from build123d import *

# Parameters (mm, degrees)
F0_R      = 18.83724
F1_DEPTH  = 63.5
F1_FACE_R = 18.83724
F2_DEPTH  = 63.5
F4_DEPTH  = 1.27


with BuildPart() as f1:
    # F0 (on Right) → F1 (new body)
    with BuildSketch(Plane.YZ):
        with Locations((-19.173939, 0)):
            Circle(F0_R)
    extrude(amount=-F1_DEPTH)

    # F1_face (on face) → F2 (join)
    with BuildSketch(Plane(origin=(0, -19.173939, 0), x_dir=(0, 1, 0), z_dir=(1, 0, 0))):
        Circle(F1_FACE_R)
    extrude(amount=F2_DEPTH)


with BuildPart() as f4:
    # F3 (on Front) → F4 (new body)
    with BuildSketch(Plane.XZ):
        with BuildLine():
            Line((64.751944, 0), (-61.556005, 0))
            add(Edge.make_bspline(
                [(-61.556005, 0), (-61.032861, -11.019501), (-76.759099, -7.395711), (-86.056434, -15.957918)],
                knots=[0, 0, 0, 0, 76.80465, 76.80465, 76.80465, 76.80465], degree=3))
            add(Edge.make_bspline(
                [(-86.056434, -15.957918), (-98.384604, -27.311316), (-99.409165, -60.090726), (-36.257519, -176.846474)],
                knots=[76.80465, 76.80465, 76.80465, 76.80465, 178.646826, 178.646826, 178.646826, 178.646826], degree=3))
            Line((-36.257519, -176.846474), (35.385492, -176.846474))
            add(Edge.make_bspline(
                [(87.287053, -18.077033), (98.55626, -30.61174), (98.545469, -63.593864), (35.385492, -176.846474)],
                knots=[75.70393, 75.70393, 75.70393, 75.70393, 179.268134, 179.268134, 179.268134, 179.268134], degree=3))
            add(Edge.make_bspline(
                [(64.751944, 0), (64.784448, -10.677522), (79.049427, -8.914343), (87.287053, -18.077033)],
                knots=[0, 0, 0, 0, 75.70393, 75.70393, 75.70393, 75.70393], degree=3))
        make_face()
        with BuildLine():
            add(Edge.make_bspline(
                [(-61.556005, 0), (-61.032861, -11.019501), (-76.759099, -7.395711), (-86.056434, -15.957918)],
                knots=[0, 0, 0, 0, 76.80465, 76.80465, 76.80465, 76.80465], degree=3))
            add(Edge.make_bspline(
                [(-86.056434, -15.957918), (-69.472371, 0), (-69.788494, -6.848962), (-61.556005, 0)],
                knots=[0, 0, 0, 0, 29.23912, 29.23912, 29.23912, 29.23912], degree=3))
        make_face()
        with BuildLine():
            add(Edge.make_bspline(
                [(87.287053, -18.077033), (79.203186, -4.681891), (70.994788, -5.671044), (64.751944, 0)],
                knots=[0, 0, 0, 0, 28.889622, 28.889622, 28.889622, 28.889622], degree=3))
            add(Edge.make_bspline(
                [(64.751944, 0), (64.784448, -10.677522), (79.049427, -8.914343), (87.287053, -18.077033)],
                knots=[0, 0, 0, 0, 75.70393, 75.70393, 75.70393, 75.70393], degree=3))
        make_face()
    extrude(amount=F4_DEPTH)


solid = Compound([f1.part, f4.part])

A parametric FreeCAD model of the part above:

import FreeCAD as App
import Part
import Sketcher
Q = App.Units.Quantity

doc = App.newDocument("Part")
body = doc.addObject("PartDesign::Body", "Body")

# Sketch on YZ plane
sketch1 = body.newObject("Sketcher::SketchObject", "Sketch")
sketch1.AttachmentSupport = (doc.getObject("YZ_Plane"), [""])
sketch1.MapMode = "FlatFace"
sketch1.addGeometry(Part.Circle(App.Vector(-19, 0, 0), App.Vector(0, 0, 1), 19), False)
sketch1.addConstraint(Sketcher.Constraint("PointOnObject", 0, 3, -1))
sketch1.addConstraint(Sketcher.Constraint("Diameter", 0, 37.67448))
sketch1.addConstraint(Sketcher.Constraint("DistanceX", 0, 3, -1, 1, 19.173939))
pad1 = body.newObject("PartDesign::Pad", "Pad")
pad1.Profile = sketch1
pad1.Length = Q("2.5 in")
pad1.Reversed = True

# Sketch on YZ plane
sketch2 = body.newObject("Sketcher::SketchObject", "Sketch001")
sketch2.AttachmentSupport = (doc.getObject("YZ_Plane"), [""])
sketch2.MapMode = "FlatFace"
sketch2.addGeometry(Part.Circle(App.Vector(-19, 0, 0), App.Vector(0, 0, 1), 19), False)
sketch2.addConstraint(Sketcher.Constraint("PointOnObject", 0, 3, -1))
sketch2.addConstraint(Sketcher.Constraint("Diameter", 0, 37.67448))
sketch2.addConstraint(Sketcher.Constraint("DistanceX", 0, 3, -1, 1, 19.173939))
pad2 = body.newObject("PartDesign::Pad", "Pad001")
pad2.Profile = sketch2
pad2.Length = Q("2.5 in")
body2 = doc.addObject("PartDesign::Body", "Body001")

# Sketch on XZ plane
sketch3 = body2.newObject("Sketcher::SketchObject", "Sketch002")
sketch3.AttachmentSupport = (doc.getObject("XZ_Plane001"), [""])
sketch3.MapMode = "FlatFace"
sketch3.addGeometry(Part.LineSegment(App.Vector(64.751944, 0, 0), App.Vector(-61.556005, 0, 0)), False)
sketch3.addGeometry(Part.BSplineCurve([App.Vector(-86.056434, -15.957918, 0), App.Vector(-69.472371, 0, 0), App.Vector(-69.788494, -6.848962, 0), App.Vector(-61.556005, 0, 0)], [4, 4], [0, 29.23912], False, 3, [1, 1, 1, 1], False), False)
sketch3.addGeometry(Part.BSplineCurve([App.Vector(-86.056434, -15.957918, 0), App.Vector(-98.384604, -27.311316, 0), App.Vector(-99.409165, -60.090726, 0), App.Vector(-36.257519, -176.846474, 0)], [4, 4], [76.80465, 178.646826], False, 3, [1, 1, 1, 1], False), False)
sketch3.addGeometry(Part.LineSegment(App.Vector(-36.257519, -176.846474, 0), App.Vector(35.385492, -176.846474, 0)), False)
sketch3.addGeometry(Part.BSplineCurve([App.Vector(87.287053, -18.077033, 0), App.Vector(98.55626, -30.61174, 0), App.Vector(98.545469, -63.593864, 0), App.Vector(35.385492, -176.846474, 0)], [4, 4], [75.70393, 179.268134], False, 3, [1, 1, 1, 1], False), False)
sketch3.addGeometry(Part.BSplineCurve([App.Vector(87.287053, -18.077033, 0), App.Vector(79.203186, -4.681891, 0), App.Vector(70.994788, -5.671044, 0), App.Vector(64.751944, 0, 0)], [4, 4], [0, 28.889622], False, 3, [1, 1, 1, 1], False), False)
sketch3.addConstraint(Sketcher.Constraint("Block", 1))
sketch3.addConstraint(Sketcher.Constraint("Block", 2))
sketch3.addConstraint(Sketcher.Constraint("Block", 4))
sketch3.addConstraint(Sketcher.Constraint("Block", 5))
sketch3.addConstraint(Sketcher.Constraint("Coincident", 0, 2, 1, 2))
sketch3.addConstraint(Sketcher.Constraint("Coincident", 2, 2, 3, 1))
sketch3.addConstraint(Sketcher.Constraint("Coincident", 3, 2, 4, 2))
sketch3.addConstraint(Sketcher.Constraint("Coincident", 5, 2, 0, 1))
pad3 = body2.newObject("PartDesign::Pad", "Pad002")
pad3.Profile = sketch3
pad3.Length = Q("0.05 in")

doc.recompute()
